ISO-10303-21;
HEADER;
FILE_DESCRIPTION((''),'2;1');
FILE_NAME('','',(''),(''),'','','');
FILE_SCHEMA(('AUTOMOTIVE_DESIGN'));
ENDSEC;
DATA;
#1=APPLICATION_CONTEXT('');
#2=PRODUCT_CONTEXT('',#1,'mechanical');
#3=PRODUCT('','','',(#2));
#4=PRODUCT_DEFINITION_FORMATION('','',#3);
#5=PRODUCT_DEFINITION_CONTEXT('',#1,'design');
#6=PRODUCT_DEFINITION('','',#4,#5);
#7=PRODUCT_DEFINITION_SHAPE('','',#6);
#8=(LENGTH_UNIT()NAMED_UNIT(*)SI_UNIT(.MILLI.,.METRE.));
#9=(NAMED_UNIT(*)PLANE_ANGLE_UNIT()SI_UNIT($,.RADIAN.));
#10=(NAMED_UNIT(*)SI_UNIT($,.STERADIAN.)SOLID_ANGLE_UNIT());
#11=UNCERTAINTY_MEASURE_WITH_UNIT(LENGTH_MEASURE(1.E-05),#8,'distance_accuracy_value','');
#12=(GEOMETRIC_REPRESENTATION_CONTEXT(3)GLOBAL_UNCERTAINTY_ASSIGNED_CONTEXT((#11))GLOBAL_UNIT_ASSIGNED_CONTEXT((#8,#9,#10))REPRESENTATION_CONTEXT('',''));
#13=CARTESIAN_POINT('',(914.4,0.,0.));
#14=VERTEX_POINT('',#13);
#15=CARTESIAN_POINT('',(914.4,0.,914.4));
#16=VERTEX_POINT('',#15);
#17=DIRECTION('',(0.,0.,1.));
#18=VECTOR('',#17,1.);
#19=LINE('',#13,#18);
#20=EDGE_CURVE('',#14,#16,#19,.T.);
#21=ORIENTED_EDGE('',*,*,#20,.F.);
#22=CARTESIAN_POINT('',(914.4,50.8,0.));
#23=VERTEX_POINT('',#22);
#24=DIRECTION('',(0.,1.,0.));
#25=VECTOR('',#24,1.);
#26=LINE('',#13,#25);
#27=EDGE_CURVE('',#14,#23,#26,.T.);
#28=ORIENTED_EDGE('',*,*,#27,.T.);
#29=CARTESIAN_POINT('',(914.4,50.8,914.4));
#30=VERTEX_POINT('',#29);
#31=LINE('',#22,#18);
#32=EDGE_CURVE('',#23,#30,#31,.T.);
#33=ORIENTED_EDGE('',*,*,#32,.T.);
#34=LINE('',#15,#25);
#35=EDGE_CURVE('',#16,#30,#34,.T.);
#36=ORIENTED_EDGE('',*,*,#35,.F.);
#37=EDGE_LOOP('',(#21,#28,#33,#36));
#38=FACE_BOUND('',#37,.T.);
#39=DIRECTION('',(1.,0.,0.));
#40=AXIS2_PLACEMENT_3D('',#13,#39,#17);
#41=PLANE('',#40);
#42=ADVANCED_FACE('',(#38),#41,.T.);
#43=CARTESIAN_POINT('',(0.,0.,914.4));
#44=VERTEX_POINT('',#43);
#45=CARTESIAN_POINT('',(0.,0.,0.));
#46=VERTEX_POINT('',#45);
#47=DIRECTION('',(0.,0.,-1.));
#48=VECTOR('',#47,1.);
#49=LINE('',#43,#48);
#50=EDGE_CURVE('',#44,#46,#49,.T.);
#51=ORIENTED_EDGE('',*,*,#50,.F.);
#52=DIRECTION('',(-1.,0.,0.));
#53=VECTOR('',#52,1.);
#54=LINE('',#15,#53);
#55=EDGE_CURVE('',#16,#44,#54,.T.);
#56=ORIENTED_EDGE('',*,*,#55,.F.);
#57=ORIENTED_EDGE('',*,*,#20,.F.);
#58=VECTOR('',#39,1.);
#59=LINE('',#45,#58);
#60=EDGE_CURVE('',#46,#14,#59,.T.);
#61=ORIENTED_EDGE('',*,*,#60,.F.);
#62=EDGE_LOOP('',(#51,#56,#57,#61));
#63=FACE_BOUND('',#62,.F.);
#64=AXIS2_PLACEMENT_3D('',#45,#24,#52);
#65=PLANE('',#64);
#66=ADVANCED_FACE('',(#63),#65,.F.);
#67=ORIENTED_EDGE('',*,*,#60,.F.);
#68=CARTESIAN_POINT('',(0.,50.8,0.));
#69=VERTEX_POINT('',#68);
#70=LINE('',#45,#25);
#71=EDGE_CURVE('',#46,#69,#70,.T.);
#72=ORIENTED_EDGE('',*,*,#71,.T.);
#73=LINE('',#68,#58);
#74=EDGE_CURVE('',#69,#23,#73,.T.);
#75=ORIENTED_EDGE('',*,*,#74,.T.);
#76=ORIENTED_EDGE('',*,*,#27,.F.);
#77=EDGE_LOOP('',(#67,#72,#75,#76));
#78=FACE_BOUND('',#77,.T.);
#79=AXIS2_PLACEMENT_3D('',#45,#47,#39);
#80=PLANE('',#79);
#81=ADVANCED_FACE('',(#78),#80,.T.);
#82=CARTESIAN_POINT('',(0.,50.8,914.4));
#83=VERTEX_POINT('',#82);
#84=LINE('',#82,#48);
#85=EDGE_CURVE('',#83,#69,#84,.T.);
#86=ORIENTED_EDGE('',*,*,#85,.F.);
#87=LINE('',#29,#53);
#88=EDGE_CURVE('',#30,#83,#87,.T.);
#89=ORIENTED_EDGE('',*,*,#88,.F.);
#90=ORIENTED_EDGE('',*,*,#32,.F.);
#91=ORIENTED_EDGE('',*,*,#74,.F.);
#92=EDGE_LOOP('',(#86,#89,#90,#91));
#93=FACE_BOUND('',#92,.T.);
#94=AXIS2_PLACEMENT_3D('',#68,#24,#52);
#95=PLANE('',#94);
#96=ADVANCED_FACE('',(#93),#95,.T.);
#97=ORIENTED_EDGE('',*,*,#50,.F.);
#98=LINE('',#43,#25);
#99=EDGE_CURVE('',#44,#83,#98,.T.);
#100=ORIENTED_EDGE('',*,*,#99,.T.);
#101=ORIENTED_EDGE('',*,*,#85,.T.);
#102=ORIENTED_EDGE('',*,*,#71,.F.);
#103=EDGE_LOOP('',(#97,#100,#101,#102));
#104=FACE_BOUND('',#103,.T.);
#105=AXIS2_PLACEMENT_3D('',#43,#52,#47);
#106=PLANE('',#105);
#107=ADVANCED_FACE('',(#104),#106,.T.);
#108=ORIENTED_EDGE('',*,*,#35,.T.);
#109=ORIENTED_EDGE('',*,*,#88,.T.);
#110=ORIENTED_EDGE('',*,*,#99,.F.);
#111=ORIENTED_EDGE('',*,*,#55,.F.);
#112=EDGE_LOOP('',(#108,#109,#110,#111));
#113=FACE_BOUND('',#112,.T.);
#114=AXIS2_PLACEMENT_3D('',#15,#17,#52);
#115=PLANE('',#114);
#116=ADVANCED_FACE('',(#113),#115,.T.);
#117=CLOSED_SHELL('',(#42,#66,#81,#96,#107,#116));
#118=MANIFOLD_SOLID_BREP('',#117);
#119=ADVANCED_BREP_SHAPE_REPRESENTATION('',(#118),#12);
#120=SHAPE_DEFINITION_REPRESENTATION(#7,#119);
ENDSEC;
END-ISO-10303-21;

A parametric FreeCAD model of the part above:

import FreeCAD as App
import Part
import Sketcher
from FreeCAD import Vector
Q = App.Units.Quantity


def add_polygon(sketch, points):
    """Adds a closed chain of lines whose ends are joined by coincident constraints."""
    first, n = sketch.GeometryCount, len(points)
    for a, b in zip(points, points[1:] + points[:1]):
        sketch.addGeometry(Part.LineSegment(App.Vector(*a, 0), App.Vector(*b, 0)), False)
    for i in range(n):
        sketch.addConstraint(Sketcher.Constraint("Coincident", first + i, 2, first + (i + 1) % n, 1))

doc = App.newDocument("Part")
body = doc.addObject("PartDesign::Body", "Body")

# Sketch on XZ plane
sketch1 = body.newObject("Sketcher::SketchObject", "Sketch")
sketch1.AttachmentSupport = (doc.getObject("XZ_Plane"), [""])
sketch1.MapMode = "FlatFace"
add_polygon(sketch1, [(914.4, 0), (0, 0), (0, 914.4), (914.4, 914.4)])  # lines 0-3
sketch1.addConstraint([
    Sketcher.Constraint("Horizontal", 0),
    Sketcher.Constraint("Vertical", 1),
    Sketcher.Constraint("Horizontal", 2),
    Sketcher.Constraint("Vertical", 3),
    Sketcher.Constraint("Coincident", 0, 2, -1, 1),
    Sketcher.Constraint("Equal", 2, 1),
    Sketcher.Constraint("DistanceX", 0, 2, 0, 1, Q("36 in")),
])
pad1 = body.newObject("PartDesign::Pad", "Pad")
pad1.Profile = sketch1
pad1.Length = Q("2 in")
pad1.Reversed = True

doc.recompute()
